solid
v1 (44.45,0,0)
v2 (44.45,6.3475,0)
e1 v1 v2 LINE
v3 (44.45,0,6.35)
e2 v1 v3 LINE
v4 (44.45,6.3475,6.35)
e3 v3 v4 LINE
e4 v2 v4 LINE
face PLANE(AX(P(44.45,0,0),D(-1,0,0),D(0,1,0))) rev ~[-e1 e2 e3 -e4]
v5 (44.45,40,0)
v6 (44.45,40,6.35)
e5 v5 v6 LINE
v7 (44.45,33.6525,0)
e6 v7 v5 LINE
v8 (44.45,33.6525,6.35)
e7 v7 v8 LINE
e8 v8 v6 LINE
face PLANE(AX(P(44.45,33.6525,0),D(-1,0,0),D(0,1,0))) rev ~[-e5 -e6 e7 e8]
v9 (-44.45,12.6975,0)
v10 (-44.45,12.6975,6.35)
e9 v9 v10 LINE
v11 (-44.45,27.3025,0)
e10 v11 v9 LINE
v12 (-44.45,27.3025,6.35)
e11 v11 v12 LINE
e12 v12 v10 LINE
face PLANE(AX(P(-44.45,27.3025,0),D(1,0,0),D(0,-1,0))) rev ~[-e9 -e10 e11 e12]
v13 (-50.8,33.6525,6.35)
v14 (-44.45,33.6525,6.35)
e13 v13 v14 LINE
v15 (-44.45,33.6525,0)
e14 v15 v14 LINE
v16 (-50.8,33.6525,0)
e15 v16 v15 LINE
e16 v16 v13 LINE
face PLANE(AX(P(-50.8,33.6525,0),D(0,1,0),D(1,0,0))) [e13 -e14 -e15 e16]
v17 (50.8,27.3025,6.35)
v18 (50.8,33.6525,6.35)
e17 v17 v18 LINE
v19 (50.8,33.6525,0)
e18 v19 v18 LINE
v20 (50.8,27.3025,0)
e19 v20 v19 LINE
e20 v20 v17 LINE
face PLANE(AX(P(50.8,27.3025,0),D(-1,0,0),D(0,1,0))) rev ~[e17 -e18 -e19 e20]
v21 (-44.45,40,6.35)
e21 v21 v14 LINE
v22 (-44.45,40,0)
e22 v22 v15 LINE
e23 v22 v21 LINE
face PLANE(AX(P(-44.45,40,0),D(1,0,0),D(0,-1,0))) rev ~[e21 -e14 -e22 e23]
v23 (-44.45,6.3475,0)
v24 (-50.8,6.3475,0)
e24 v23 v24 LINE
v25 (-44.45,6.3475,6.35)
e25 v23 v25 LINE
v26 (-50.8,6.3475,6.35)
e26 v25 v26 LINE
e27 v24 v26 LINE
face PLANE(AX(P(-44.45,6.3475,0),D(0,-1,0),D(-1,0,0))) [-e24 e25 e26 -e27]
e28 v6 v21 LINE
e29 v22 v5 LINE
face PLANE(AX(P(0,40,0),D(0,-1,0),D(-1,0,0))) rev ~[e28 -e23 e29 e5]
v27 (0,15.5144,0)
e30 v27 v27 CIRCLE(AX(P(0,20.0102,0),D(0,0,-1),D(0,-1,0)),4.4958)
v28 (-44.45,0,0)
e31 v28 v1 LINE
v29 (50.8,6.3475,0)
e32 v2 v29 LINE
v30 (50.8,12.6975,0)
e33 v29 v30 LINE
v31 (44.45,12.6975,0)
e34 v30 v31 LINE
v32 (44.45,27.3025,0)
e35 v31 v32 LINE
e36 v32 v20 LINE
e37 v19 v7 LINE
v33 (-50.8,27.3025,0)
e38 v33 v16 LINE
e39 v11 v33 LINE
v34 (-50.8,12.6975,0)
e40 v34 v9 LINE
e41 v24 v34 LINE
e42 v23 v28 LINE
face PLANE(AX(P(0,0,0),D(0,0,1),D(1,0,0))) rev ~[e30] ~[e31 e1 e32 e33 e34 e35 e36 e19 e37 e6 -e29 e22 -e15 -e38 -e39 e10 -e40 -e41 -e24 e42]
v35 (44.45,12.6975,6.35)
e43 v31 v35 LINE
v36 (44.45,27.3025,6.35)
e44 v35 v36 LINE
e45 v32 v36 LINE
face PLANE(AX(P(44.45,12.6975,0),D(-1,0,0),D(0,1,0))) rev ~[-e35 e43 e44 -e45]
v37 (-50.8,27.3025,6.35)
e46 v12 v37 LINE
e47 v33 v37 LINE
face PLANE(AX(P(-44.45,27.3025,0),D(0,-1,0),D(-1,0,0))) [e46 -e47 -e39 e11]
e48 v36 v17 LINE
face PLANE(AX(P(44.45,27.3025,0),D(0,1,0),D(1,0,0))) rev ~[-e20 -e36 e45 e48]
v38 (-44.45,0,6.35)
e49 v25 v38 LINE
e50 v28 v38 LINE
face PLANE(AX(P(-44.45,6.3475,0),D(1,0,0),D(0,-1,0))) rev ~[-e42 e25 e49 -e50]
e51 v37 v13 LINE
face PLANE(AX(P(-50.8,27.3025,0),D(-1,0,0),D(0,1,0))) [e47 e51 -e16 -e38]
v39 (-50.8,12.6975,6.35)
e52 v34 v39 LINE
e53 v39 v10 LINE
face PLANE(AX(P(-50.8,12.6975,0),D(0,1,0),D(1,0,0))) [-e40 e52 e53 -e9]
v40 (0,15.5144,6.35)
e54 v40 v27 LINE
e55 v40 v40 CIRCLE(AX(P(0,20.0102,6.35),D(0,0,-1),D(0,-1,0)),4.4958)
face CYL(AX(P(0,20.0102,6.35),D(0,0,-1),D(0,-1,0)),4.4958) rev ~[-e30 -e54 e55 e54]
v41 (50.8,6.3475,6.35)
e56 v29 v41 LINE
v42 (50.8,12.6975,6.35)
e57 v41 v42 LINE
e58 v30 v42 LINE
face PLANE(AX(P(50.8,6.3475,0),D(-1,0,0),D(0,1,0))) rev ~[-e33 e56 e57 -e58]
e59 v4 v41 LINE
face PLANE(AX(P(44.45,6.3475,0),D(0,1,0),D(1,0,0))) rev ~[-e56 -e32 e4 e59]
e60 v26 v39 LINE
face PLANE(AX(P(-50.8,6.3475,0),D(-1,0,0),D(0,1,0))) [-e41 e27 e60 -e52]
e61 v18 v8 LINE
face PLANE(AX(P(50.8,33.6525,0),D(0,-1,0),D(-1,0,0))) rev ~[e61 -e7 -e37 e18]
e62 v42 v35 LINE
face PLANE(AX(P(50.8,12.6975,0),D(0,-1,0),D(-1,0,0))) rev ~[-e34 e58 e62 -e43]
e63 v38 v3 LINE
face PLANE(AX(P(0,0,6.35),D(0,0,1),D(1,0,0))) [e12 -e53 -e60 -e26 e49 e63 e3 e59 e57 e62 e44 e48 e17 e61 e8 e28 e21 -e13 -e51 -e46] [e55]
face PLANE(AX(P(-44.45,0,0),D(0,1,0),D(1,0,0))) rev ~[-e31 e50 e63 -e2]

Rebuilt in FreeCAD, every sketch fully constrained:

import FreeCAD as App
import Part
import Sketcher
from FreeCAD import Vector
Q = App.Units.Quantity

doc = App.newDocument("Part")
params = doc.addObject("Spreadsheet::Sheet", "Params")
for row, (alias, value) in enumerate([
    ("sketch1_width", "3.5 in"),
    ("sketch1_width2", "0.25 in"),
    ("sketch1_height", "0.575 in"),
    ("pad1_length", "0.25 in"),
    ("sketch2_diameter", "0.354 in"),
    ("hole_diameter", "0.354 in"),
], start=1):
    params.set(f"A{row}", alias)
    params.set(f"B{row}", "=" + value)
    params.setAlias(f"B{row}", alias)

body = doc.addObject("PartDesign::Body", "Body")

# Sketch on XY plane
sketch1 = doc.addObject("Sketcher::SketchObject", "Sketch")
body.addObject(sketch1)
sketch1.AttachmentSupport = (doc.XY_Plane, [""])
sketch1.MapMode = "FlatFace"
sketch1.addGeometry([
    Part.LineSegment(Vector(-44.45, 6.3475, 0), Vector(-44.45, 0, 0)),  # 0
    Part.LineSegment(Vector(-44.45, 0, 0), Vector(44.45, 0, 0)),  # 1
    Part.LineSegment(Vector(44.45, 0, 0), Vector(44.45, 6.3475, 0)),  # 2
    Part.LineSegment(Vector(44.45, 6.3475, 0), Vector(50.8, 6.3475, 0)),  # 3
    Part.LineSegment(Vector(50.8, 6.3475, 0), Vector(50.8, 12.6975, 0)),  # 4
    Part.LineSegment(Vector(50.8, 12.6975, 0), Vector(44.45, 12.6975, 0)),  # 5
    Part.LineSegment(Vector(44.45, 12.6975, 0), Vector(44.45, 27.3025, 0)),  # 6
    Part.LineSegment(Vector(44.45, 27.3025, 0), Vector(50.8, 27.3025, 0)),  # 7
    Part.LineSegment(Vector(50.8, 27.3025, 0), Vector(50.8, 33.6525, 0)),  # 8
    Part.LineSegment(Vector(50.8, 33.6525, 0), Vector(44.45, 33.6525, 0)),  # 9
    Part.LineSegment(Vector(44.45, 33.6525, 0), Vector(44.45, 40, 0)),  # 10
    Part.LineSegment(Vector(44.45, 40, 0), Vector(-44.45, 40, 0)),  # 11
    Part.LineSegment(Vector(-44.45, 40, 0), Vector(-44.45, 33.6525, 0)),  # 12
    Part.LineSegment(Vector(-44.45, 33.6525, 0), Vector(-50.8, 33.6525, 0)),  # 13
    Part.LineSegment(Vector(-50.8, 33.6525, 0), Vector(-50.8, 27.3025, 0)),  # 14
    Part.LineSegment(Vector(-50.8, 27.3025, 0), Vector(-44.45, 27.3025, 0)),  # 15
    Part.LineSegment(Vector(-44.45, 27.3025, 0), Vector(-44.45, 12.6975, 0)),  # 16
    Part.LineSegment(Vector(-44.45, 12.6975, 0), Vector(-50.8, 12.6975, 0)),  # 17
    Part.LineSegment(Vector(-50.8, 12.6975, 0), Vector(-50.8, 6.3475, 0)),  # 18
    Part.LineSegment(Vector(-50.8, 6.3475, 0), Vector(-44.45, 6.3475, 0)),  # 19
], False)
sketch1.addConstraint([
    Sketcher.Constraint("Coincident", 0, 2, 1, 1),
    Sketcher.Constraint("Coincident", 1, 2, 2, 1),
    Sketcher.Constraint("Coincident", 2, 2, 3, 1),
    Sketcher.Constraint("Coincident", 3, 2, 4, 1),
    Sketcher.Constraint("Coincident", 4, 2, 5, 1),
    Sketcher.Constraint("Coincident", 5, 2, 6, 1),
    Sketcher.Constraint("Coincident", 6, 2, 7, 1),
    Sketcher.Constraint("Coincident", 7, 2, 8, 1),
    Sketcher.Constraint("Coincident", 8, 2, 9, 1),
    Sketcher.Constraint("Coincident", 9, 2, 10, 1),
    Sketcher.Constraint("Coincident", 10, 2, 11, 1),
    Sketcher.Constraint("Coincident", 11, 2, 12, 1),
    Sketcher.Constraint("Coincident", 12, 2, 13, 1),
    Sketcher.Constraint("Coincident", 13, 2, 14, 1),
    Sketcher.Constraint("Coincident", 14, 2, 15, 1),
    Sketcher.Constraint("Coincident", 15, 2, 16, 1),
    Sketcher.Constraint("Coincident", 16, 2, 17, 1),
    Sketcher.Constraint("Coincident", 17, 2, 18, 1),
    Sketcher.Constraint("Coincident", 18, 2, 19, 1),
    Sketcher.Constraint("Coincident", 19, 2, 0, 1),
    Sketcher.Constraint("Vertical", 0),
    Sketcher.Constraint("Horizontal", 1),
    Sketcher.Constraint("Vertical", 2),
    Sketcher.Constraint("Horizontal", 3),
    Sketcher.Constraint("Vertical", 4),
    Sketcher.Constraint("Horizontal", 5),
    Sketcher.Constraint("Vertical", 6),
    Sketcher.Constraint("Horizontal", 7),
    Sketcher.Constraint("Vertical", 8),
    Sketcher.Constraint("Horizontal", 9),
    Sketcher.Constraint("Vertical", 10),
    Sketcher.Constraint("Horizontal", 11),
    Sketcher.Constraint("Vertical", 12),
    Sketcher.Constraint("Horizontal", 13),
    Sketcher.Constraint("Vertical", 14),
    Sketcher.Constraint("Horizontal", 15),
    Sketcher.Constraint("Vertical", 16),
    Sketcher.Constraint("Horizontal", 17),
    Sketcher.Constraint("Vertical", 18),
    Sketcher.Constraint("Horizontal", 19),
    Sketcher.Constraint("Symmetric", 0, 2, 1, 2, -1, 1),
    Sketcher.Constraint("Symmetric", 9, 2, 12, 2, -2),
    Sketcher.Constraint("Symmetric", 7, 2, 14, 2, -2),
    Sketcher.Constraint("Symmetric", 5, 2, 16, 2, -2),
    Sketcher.Constraint("Symmetric", 3, 2, 18, 2, -2),
    Sketcher.Constraint("Vertical", 2, 2, 5, 2),
    Sketcher.Constraint("Vertical", 4, 2, 7, 2),
    Sketcher.Constraint("Vertical", 6, 2, 9, 2),
    Sketcher.Constraint("Equal", 19, 4),
    Sketcher.Constraint("Equal", 4, 8),
    Sketcher.Constraint("Equal", 2, 10),
    Sketcher.Constraint("DistanceX", 1, 1, 1, 2, Q("3.5 in")),
    Sketcher.Constraint("DistanceX", 3, 1, 3, 2, Q("0.25 in")),
    Sketcher.Constraint("DistanceY", 6, 1, 6, 2, Q("0.575 in")),
    Sketcher.Constraint("DistanceY", -1, 1, 10, 2, Q("1.5748 in")),
])
sketch1.setExpression("Constraints[51]", "Params.sketch1_width")
sketch1.setExpression("Constraints[52]", "Params.sketch1_width2")
sketch1.setExpression("Constraints[53]", "Params.sketch1_height")
pad1 = doc.addObject("PartDesign::Pad", "Pad")
body.addObject(pad1)
pad1.Profile = sketch1
pad1.setExpression("Length", "Params.pad1_length")

# Sketch on XY plane
sketch2 = doc.addObject("Sketcher::SketchObject", "Sketch001")
body.addObject(sketch2)
sketch2.AttachmentSupport = (doc.XY_Plane, [""])
sketch2.MapMode = "FlatFace"
sketch2.AttachmentOffset = App.Placement(Vector(0, 0, 0.25 * 25.4), App.Rotation())
sketch2.addGeometry(Part.Circle(Vector(0, 20.0102, 0), Vector(0, 0, 1), 4.4958), False)
sketch2.addConstraint([
    Sketcher.Constraint("PointOnObject", 0, 3, -2),
    Sketcher.Constraint("Diameter", 0, Q("0.354 in")),
    Sketcher.Constraint("DistanceY", -1, 1, 0, 3, Q("0.7878 in")),
])
sketch2.setExpression("Constraints[1]", "Params.sketch2_diameter")
doc.recompute()
hole = doc.addObject("PartDesign::Hole", "Hole")
body.addObject(hole)
hole.Profile = sketch2
hole.ThreadType = "None"
hole.setExpression("Diameter", "Params.hole_diameter")
hole.DepthType = "ThroughAll"

doc.recompute()
